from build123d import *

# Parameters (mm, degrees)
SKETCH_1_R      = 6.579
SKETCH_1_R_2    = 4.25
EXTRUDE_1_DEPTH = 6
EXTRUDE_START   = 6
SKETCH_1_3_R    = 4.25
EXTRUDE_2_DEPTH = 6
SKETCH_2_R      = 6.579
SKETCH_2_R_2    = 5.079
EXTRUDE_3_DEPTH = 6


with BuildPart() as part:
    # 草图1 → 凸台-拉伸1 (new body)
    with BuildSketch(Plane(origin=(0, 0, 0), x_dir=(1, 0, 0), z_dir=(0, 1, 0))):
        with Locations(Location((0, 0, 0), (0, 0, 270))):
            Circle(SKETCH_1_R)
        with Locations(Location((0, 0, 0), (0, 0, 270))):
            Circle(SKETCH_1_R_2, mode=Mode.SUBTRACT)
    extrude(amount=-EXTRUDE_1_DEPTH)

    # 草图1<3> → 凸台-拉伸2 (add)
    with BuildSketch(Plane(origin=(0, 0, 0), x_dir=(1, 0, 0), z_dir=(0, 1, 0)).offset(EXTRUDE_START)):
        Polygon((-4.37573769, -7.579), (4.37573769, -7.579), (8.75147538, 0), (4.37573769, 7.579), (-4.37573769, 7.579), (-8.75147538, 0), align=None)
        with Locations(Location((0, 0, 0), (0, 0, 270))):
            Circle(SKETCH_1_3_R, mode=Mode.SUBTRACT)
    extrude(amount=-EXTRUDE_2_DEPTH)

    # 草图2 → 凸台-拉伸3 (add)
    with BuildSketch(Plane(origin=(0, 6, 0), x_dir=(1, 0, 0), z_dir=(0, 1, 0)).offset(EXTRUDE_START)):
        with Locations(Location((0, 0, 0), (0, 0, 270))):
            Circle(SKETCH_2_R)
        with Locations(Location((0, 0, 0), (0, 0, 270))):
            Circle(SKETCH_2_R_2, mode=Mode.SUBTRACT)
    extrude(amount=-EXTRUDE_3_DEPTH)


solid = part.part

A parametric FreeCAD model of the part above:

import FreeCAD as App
import Part
import Sketcher
Q = App.Units.Quantity

doc = App.newDocument("Part")
body = doc.addObject("PartDesign::Body", "Body")

# Sketch on XZ plane
sketch1 = doc.addObject("Sketcher::SketchObject", "Sketch")
body.addObject(sketch1)
sketch1.AttachmentSupport = (doc.XZ_Plane, [""])
sketch1.MapMode = "FlatFace"
sketch1.addGeometry([
    Part.Circle(App.Vector(0, 0, 0), App.Vector(0, 0, 1), 6.6),
    Part.Circle(App.Vector(0, 0, 0), App.Vector(0, 0, 1), 4.2),
], False)
sketch1.addConstraint([
    Sketcher.Constraint("Coincident", 0, 3, -1, 1),
    Sketcher.Constraint("Coincident", 1, 3, -1, 1),
    Sketcher.Constraint("Diameter", 1, Q("8.5 mm")),
    Sketcher.Constraint("Diameter", 0, Q("13.158 mm")),
])
pad1 = doc.addObject("PartDesign::Pad", "Pad")
body.addObject(pad1)
pad1.Profile = sketch1
pad1.Length = 6

# Sketch on XZ plane
sketch2 = doc.addObject("Sketcher::SketchObject", "Sketch001")
body.addObject(sketch2)
sketch2.AttachmentSupport = (doc.XZ_Plane, [""])
sketch2.MapMode = "FlatFace"
sketch2.AttachmentOffset = App.Placement(App.Vector(0, 0, -6), App.Rotation())
sketch2.addGeometry([
    Part.LineSegment(App.Vector(-4.4, 7.6, 0), App.Vector(4.4, 7.6, 0)),  # 0
    Part.LineSegment(App.Vector(4.4, 7.6, 0), App.Vector(8.8, 0, 0)),  # 1
    Part.LineSegment(App.Vector(8.8, 0, 0), App.Vector(4.4, -7.6, 0)),  # 2
    Part.LineSegment(App.Vector(4.4, -7.6, 0), App.Vector(-4.4, -7.6, 0)),  # 3
    Part.LineSegment(App.Vector(-4.4, -7.6, 0), App.Vector(-8.8, 0, 0)),  # 4
    Part.LineSegment(App.Vector(-8.8, 0, 0), App.Vector(-4.4, 7.6, 0)),  # 5
    Part.Circle(App.Vector(0, 0, 0), App.Vector(0, 0, 1), 4.2),  # 6
], False)
sketch2.addConstraint([
    Sketcher.Constraint("Coincident", 0, 2, 1, 1),
    Sketcher.Constraint("Coincident", 1, 2, 2, 1),
    Sketcher.Constraint("Coincident", 2, 2, 3, 1),
    Sketcher.Constraint("Coincident", 3, 2, 4, 1),
    Sketcher.Constraint("Coincident", 4, 2, 5, 1),
    Sketcher.Constraint("Coincident", 5, 2, 0, 1),
    Sketcher.Constraint("Horizontal", 0),
    Sketcher.Constraint("Horizontal", 3),
    Sketcher.Constraint("Coincident", 6, 3, -1, 1),
    Sketcher.Constraint("Symmetric", 0, 2, 3, 2, -1, 1),
    Sketcher.Constraint("Symmetric", 1, 2, 4, 2, -1, 1),
    Sketcher.Constraint("PointOnObject", 1, 2, -1),
    Sketcher.Constraint("Parallel", 2, 5),
    Sketcher.Constraint("Vertical", 0, 2, 2, 2),
    Sketcher.Constraint("Diameter", 6, Q("8.5 mm")),
    Sketcher.Constraint("Angle", 1, Q("-60 deg")),
    Sketcher.Constraint("DistanceY", -1, 1, 0, 2, Q("7.579 mm")),
    Sketcher.Constraint("DistanceX", 0, 1, 0, 2, Q("8.751475 mm")),
])
pad2 = doc.addObject("PartDesign::Pad", "Pad001")
body.addObject(pad2)
pad2.Profile = sketch2
pad2.Length = 6

# Sketch on XZ plane
sketch3 = doc.addObject("Sketcher::SketchObject", "Sketch002")
body.addObject(sketch3)
sketch3.AttachmentSupport = (doc.XZ_Plane, [""])
sketch3.MapMode = "FlatFace"
sketch3.AttachmentOffset = App.Placement(App.Vector(0, 0, -12), App.Rotation())
sketch3.addGeometry([
    Part.Circle(App.Vector(0, 0, 0), App.Vector(0, 0, 1), 7),
    Part.Circle(App.Vector(0, 0, 0), App.Vector(0, 0, 1), 5),
], False)
sketch3.addConstraint([
    Sketcher.Constraint("Coincident", 0, 3, -1, 1),
    Sketcher.Constraint("Coincident", 1, 3, -1, 1),
    Sketcher.Constraint("Diameter", 0, Q("13.158 mm")),
    Sketcher.Constraint("Diameter", 1, Q("10.158 mm")),
])
pad3 = doc.addObject("PartDesign::Pad", "Pad002")
body.addObject(pad3)
pad3.Profile = sketch3
pad3.Length = 6

doc.recompute()
